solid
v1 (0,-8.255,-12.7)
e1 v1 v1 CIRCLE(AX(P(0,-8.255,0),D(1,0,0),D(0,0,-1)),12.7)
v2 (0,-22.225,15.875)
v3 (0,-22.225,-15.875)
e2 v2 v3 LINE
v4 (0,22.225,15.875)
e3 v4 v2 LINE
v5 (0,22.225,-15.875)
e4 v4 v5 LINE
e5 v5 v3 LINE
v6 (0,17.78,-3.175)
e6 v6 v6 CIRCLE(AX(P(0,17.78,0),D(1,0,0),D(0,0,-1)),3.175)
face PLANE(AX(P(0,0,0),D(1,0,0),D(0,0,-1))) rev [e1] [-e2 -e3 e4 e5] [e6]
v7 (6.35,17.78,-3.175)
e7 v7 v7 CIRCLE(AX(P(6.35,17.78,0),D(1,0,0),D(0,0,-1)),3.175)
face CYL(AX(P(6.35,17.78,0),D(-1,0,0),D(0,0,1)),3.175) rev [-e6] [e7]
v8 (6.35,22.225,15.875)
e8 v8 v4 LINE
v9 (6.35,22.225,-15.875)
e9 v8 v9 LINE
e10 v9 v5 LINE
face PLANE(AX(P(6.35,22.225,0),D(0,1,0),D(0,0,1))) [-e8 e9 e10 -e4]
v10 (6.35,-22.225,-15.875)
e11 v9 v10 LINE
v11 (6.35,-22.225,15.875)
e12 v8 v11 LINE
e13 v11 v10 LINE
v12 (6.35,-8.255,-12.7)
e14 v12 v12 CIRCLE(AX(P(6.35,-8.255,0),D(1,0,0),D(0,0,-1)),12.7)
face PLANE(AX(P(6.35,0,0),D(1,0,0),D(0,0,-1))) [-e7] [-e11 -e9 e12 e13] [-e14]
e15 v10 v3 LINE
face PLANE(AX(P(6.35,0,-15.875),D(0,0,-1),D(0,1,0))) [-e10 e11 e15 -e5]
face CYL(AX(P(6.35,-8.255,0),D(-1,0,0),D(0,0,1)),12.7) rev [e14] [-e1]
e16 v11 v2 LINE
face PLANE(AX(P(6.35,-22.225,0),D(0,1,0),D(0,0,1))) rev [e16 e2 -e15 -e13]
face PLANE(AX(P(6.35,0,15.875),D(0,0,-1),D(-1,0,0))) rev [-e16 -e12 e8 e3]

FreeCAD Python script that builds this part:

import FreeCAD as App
import Part
import Sketcher
from FreeCAD import Vector
Q = App.Units.Quantity


def add_polygon(sketch, points):
    """Adds a closed chain of lines whose ends are joined by coincident constraints."""
    first, n = sketch.GeometryCount, len(points)
    for a, b in zip(points, points[1:] + points[:1]):
        sketch.addGeometry(Part.LineSegment(App.Vector(*a, 0), App.Vector(*b, 0)), False)
    for i in range(n):
        sketch.addConstraint(Sketcher.Constraint("Coincident", first + i, 2, first + (i + 1) % n, 1))

doc = App.newDocument("Part")
body = doc.addObject("PartDesign::Body", "Body")

# Sketch on YZ plane
sketch1 = doc.addObject("Sketcher::SketchObject", "Sketch")
body.addObject(sketch1)
sketch1.AttachmentSupport = (doc.YZ_Plane, [""])
sketch1.MapMode = "FlatFace"
add_polygon(sketch1, [(22.2, 15.9), (-22.2, 15.9), (-22.2, -15.9), (22.2, -15.9)])  # lines 0-3
sketch1.addGeometry(Part.Circle(Vector(-8.3, 0, 0), Vector(0, 0, 1), 12.7), False)  # 4
sketch1.addGeometry(Part.Circle(Vector(17.8, 0, 0), Vector(0, 0, 1), 3.2), False)  # 5
sketch1.addConstraint(Sketcher.Constraint("Horizontal", 0))
sketch1.addConstraint(Sketcher.Constraint("Vertical", 1))
sketch1.addConstraint(Sketcher.Constraint("Horizontal", 2))
sketch1.addConstraint(Sketcher.Constraint("Vertical", 3))
sketch1.addConstraint(Sketcher.Constraint("Symmetric", 0, 2, 2, 2, -1, 1))
sketch1.addConstraint(Sketcher.Constraint("PointOnObject", 4, 3, -1))
sketch1.addConstraint(Sketcher.Constraint("PointOnObject", 5, 3, -1))
sketch1.addConstraint(Sketcher.Constraint("Diameter", 4, Q("1 in")))
sketch1.addConstraint(Sketcher.Constraint("Diameter", 5, Q("0.25 in")))
sketch1.addConstraint(Sketcher.Constraint("DistanceX", 0, 2, 0, 1, Q("1.75 in")))
sketch1.addConstraint(Sketcher.Constraint("DistanceY", 1, 2, 1, 1, Q("1.25 in")))
sketch1.addConstraint(Sketcher.Constraint("DistanceX", -1, 1, 5, 3, Q("0.7 in")))
sketch1.addConstraint(Sketcher.Constraint("DistanceX", 4, 3, 2, 2, Q("1.2 in")))
pad1 = doc.addObject("PartDesign::Pad", "Pad")
body.addObject(pad1)
pad1.Profile = sketch1
pad1.Length = Q("0.25 in")

doc.recompute()
